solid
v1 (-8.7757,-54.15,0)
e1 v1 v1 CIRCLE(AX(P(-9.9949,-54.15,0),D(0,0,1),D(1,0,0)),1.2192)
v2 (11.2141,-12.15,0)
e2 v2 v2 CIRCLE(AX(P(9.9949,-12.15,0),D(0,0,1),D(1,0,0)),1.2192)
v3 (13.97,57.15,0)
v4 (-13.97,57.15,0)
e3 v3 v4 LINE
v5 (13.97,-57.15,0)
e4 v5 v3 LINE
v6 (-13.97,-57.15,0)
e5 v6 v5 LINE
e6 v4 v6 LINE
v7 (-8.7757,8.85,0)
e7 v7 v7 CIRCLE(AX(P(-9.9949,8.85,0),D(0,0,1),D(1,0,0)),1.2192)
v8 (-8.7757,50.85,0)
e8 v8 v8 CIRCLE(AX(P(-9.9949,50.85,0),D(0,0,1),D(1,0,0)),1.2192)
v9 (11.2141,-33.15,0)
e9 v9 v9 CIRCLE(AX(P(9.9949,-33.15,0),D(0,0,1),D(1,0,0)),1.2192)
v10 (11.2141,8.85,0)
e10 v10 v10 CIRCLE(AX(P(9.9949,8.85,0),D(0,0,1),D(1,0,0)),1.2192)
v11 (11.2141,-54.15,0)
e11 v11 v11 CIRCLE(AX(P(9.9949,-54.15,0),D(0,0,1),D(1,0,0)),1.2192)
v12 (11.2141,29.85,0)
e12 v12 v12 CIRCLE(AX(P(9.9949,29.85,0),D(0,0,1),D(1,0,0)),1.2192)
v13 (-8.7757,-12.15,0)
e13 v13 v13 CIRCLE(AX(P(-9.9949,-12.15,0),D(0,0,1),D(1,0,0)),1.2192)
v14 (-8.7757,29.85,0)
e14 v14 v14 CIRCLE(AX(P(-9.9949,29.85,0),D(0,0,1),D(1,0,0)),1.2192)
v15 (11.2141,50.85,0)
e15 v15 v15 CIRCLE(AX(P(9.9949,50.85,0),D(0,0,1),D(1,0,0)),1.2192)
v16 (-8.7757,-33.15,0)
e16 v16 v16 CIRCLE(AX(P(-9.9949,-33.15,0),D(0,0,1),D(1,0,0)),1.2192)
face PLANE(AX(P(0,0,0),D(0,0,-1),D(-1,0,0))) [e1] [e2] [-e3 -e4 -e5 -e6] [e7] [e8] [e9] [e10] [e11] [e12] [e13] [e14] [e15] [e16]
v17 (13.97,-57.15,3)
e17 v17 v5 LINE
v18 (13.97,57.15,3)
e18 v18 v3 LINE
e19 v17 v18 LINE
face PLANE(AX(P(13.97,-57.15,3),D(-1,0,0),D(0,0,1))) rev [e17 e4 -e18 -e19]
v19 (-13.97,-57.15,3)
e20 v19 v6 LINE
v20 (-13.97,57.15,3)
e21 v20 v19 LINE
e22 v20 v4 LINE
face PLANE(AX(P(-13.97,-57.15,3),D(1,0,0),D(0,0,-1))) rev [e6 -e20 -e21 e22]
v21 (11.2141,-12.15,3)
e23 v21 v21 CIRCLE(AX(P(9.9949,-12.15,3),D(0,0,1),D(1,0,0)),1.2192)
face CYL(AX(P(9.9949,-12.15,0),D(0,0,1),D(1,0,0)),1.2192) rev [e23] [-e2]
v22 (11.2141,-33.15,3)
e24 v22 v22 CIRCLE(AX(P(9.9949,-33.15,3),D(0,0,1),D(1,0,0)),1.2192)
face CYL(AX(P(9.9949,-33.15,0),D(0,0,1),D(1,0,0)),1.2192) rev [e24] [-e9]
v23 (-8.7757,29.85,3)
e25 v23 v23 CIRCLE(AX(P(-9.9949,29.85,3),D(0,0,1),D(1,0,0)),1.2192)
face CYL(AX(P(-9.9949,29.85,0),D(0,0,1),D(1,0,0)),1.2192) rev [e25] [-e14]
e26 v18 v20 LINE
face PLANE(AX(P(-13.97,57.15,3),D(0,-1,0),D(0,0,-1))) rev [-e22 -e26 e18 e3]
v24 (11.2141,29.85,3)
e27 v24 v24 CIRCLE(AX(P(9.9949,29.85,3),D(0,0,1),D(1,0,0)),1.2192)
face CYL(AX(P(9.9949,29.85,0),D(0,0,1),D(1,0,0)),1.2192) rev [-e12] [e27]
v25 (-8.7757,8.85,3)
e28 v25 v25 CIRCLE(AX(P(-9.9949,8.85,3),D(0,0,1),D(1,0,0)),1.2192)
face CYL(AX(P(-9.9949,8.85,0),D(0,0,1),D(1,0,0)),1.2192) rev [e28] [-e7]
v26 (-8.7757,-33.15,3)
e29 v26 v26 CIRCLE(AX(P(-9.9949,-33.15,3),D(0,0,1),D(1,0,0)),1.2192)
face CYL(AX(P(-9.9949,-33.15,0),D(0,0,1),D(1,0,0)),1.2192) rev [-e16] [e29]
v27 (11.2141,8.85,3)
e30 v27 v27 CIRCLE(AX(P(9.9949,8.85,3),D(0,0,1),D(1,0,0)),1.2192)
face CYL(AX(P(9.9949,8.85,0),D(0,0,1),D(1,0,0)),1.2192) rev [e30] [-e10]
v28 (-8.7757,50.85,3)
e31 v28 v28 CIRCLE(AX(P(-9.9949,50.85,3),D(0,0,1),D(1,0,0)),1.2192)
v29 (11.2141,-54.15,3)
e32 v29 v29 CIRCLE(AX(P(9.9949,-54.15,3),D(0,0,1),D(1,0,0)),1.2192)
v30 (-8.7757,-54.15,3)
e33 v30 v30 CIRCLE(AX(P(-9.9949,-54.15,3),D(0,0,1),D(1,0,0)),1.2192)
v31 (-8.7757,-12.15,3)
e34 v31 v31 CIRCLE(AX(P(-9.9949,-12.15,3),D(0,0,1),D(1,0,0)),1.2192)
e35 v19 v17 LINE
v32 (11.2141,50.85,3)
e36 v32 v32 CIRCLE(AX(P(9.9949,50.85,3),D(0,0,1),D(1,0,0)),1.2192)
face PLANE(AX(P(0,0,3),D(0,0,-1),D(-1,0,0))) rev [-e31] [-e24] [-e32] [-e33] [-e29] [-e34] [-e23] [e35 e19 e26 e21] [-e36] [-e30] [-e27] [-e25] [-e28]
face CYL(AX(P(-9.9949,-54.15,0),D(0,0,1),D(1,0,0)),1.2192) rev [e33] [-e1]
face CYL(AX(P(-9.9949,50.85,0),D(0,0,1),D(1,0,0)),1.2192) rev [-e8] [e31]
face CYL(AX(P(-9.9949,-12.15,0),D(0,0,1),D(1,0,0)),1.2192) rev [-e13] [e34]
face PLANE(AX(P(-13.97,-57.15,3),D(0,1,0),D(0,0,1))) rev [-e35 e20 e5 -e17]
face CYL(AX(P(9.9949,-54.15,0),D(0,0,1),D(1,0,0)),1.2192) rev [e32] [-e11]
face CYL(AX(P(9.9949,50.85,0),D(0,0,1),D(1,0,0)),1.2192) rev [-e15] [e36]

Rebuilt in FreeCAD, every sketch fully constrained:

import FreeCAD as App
import Part
import Sketcher
Q = App.Units.Quantity


def add_polygon(sketch, points):
    """Adds a closed chain of lines whose ends are joined by coincident constraints."""
    first, n = sketch.GeometryCount, len(points)
    for a, b in zip(points, points[1:] + points[:1]):
        sketch.addGeometry(Part.LineSegment(App.Vector(*a, 0), App.Vector(*b, 0)), False)
    for i in range(n):
        sketch.addConstraint(Sketcher.Constraint("Coincident", first + i, 2, first + (i + 1) % n, 1))

doc = App.newDocument("Part")
params = doc.addObject("Spreadsheet::Sheet", "Params")
for row, (alias, value) in enumerate([
    ("sketch1_width", "1.1 in"),
    ("sketch1_height", "4.5 in"),
    ("pad1_length", "3 mm"),
    ("sketch2_diameter", "0.096 in"),
    ("linearpattern_pitch", "21 mm"),
], start=1):
    params.set(f"A{row}", alias)
    params.set(f"B{row}", "=" + value)
    params.setAlias(f"B{row}", alias)

body = doc.addObject("PartDesign::Body", "Body")

# Sketch on XY plane
sketch1 = body.newObject("Sketcher::SketchObject", "Sketch")
sketch1.AttachmentSupport = (doc.getObject("XY_Plane"), [""])
sketch1.MapMode = "FlatFace"
add_polygon(sketch1, [(-14, 57), (-14, -57), (14, -57), (14, 57)])  # lines 0-3
sketch1.addConstraint(Sketcher.Constraint("Vertical", 0))
sketch1.addConstraint(Sketcher.Constraint("Horizontal", 1))
sketch1.addConstraint(Sketcher.Constraint("Vertical", 2))
sketch1.addConstraint(Sketcher.Constraint("Horizontal", 3))
sketch1.addConstraint(Sketcher.Constraint("Symmetric", 0, 2, 2, 2, -1, 1))
sketch1.addConstraint(Sketcher.Constraint("DistanceX", 1, 1, 1, 2, Q("1.1 in")))
sketch1.addConstraint(Sketcher.Constraint("DistanceY", 0, 2, 0, 1, Q("4.5 in")))
sketch1.setExpression("Constraints[9]", "Params.sketch1_width")
sketch1.setExpression("Constraints[10]", "Params.sketch1_height")
pad1 = body.newObject("PartDesign::Pad", "Pad")
pad1.Profile = sketch1
pad1.setExpression("Length", "Params.pad1_length")

# Sketch on XY plane
sketch2 = body.newObject("Sketcher::SketchObject", "Sketch001")
sketch2.AttachmentSupport = (doc.getObject("XY_Plane"), [""])
sketch2.MapMode = "FlatFace"
sketch2.AttachmentOffset = App.Placement(App.Vector(0, 0, 3), App.Rotation())
sketch2.addGeometry(Part.Circle(App.Vector(-10, -54.1, 0), App.Vector(0, 0, 1), 1.2), False)
sketch2.addGeometry(Part.Circle(App.Vector(10, -54.1, 0), App.Vector(0, 0, 1), 1.2), False)
sketch2.addConstraint(Sketcher.Constraint("Equal", 0, 1))
sketch2.addConstraint(Sketcher.Constraint("Symmetric", 0, 3, 1, 3, -2))
sketch2.addConstraint(Sketcher.Constraint("Diameter", 0, Q("0.096 in")))
sketch2.addConstraint(Sketcher.Constraint("DistanceX", 0, 3, 1, 3, Q("0.787 in")))
sketch2.addConstraint(Sketcher.Constraint("DistanceY", 0, 3, -1, 1, Q("54.15 mm")))
sketch2.setExpression("Constraints[2]", "Params.sketch2_diameter")
pocket1 = body.newObject("PartDesign::Pocket", "Pocket")
pocket1.Profile = sketch2
pocket1.Type = "ThroughAll"
doc.recompute()

linearpattern = body.newObject("PartDesign::LinearPattern", "LinearPattern")
linearpattern.Originals = [pocket1]
linearpattern.Direction = (doc.getObject("Y_Axis"), [""])
linearpattern.Mode = "offset"
linearpattern.setExpression("Offset", "Params.linearpattern_pitch")
linearpattern.Occurrences = 6
body.Tip = linearpattern

doc.recompute()
